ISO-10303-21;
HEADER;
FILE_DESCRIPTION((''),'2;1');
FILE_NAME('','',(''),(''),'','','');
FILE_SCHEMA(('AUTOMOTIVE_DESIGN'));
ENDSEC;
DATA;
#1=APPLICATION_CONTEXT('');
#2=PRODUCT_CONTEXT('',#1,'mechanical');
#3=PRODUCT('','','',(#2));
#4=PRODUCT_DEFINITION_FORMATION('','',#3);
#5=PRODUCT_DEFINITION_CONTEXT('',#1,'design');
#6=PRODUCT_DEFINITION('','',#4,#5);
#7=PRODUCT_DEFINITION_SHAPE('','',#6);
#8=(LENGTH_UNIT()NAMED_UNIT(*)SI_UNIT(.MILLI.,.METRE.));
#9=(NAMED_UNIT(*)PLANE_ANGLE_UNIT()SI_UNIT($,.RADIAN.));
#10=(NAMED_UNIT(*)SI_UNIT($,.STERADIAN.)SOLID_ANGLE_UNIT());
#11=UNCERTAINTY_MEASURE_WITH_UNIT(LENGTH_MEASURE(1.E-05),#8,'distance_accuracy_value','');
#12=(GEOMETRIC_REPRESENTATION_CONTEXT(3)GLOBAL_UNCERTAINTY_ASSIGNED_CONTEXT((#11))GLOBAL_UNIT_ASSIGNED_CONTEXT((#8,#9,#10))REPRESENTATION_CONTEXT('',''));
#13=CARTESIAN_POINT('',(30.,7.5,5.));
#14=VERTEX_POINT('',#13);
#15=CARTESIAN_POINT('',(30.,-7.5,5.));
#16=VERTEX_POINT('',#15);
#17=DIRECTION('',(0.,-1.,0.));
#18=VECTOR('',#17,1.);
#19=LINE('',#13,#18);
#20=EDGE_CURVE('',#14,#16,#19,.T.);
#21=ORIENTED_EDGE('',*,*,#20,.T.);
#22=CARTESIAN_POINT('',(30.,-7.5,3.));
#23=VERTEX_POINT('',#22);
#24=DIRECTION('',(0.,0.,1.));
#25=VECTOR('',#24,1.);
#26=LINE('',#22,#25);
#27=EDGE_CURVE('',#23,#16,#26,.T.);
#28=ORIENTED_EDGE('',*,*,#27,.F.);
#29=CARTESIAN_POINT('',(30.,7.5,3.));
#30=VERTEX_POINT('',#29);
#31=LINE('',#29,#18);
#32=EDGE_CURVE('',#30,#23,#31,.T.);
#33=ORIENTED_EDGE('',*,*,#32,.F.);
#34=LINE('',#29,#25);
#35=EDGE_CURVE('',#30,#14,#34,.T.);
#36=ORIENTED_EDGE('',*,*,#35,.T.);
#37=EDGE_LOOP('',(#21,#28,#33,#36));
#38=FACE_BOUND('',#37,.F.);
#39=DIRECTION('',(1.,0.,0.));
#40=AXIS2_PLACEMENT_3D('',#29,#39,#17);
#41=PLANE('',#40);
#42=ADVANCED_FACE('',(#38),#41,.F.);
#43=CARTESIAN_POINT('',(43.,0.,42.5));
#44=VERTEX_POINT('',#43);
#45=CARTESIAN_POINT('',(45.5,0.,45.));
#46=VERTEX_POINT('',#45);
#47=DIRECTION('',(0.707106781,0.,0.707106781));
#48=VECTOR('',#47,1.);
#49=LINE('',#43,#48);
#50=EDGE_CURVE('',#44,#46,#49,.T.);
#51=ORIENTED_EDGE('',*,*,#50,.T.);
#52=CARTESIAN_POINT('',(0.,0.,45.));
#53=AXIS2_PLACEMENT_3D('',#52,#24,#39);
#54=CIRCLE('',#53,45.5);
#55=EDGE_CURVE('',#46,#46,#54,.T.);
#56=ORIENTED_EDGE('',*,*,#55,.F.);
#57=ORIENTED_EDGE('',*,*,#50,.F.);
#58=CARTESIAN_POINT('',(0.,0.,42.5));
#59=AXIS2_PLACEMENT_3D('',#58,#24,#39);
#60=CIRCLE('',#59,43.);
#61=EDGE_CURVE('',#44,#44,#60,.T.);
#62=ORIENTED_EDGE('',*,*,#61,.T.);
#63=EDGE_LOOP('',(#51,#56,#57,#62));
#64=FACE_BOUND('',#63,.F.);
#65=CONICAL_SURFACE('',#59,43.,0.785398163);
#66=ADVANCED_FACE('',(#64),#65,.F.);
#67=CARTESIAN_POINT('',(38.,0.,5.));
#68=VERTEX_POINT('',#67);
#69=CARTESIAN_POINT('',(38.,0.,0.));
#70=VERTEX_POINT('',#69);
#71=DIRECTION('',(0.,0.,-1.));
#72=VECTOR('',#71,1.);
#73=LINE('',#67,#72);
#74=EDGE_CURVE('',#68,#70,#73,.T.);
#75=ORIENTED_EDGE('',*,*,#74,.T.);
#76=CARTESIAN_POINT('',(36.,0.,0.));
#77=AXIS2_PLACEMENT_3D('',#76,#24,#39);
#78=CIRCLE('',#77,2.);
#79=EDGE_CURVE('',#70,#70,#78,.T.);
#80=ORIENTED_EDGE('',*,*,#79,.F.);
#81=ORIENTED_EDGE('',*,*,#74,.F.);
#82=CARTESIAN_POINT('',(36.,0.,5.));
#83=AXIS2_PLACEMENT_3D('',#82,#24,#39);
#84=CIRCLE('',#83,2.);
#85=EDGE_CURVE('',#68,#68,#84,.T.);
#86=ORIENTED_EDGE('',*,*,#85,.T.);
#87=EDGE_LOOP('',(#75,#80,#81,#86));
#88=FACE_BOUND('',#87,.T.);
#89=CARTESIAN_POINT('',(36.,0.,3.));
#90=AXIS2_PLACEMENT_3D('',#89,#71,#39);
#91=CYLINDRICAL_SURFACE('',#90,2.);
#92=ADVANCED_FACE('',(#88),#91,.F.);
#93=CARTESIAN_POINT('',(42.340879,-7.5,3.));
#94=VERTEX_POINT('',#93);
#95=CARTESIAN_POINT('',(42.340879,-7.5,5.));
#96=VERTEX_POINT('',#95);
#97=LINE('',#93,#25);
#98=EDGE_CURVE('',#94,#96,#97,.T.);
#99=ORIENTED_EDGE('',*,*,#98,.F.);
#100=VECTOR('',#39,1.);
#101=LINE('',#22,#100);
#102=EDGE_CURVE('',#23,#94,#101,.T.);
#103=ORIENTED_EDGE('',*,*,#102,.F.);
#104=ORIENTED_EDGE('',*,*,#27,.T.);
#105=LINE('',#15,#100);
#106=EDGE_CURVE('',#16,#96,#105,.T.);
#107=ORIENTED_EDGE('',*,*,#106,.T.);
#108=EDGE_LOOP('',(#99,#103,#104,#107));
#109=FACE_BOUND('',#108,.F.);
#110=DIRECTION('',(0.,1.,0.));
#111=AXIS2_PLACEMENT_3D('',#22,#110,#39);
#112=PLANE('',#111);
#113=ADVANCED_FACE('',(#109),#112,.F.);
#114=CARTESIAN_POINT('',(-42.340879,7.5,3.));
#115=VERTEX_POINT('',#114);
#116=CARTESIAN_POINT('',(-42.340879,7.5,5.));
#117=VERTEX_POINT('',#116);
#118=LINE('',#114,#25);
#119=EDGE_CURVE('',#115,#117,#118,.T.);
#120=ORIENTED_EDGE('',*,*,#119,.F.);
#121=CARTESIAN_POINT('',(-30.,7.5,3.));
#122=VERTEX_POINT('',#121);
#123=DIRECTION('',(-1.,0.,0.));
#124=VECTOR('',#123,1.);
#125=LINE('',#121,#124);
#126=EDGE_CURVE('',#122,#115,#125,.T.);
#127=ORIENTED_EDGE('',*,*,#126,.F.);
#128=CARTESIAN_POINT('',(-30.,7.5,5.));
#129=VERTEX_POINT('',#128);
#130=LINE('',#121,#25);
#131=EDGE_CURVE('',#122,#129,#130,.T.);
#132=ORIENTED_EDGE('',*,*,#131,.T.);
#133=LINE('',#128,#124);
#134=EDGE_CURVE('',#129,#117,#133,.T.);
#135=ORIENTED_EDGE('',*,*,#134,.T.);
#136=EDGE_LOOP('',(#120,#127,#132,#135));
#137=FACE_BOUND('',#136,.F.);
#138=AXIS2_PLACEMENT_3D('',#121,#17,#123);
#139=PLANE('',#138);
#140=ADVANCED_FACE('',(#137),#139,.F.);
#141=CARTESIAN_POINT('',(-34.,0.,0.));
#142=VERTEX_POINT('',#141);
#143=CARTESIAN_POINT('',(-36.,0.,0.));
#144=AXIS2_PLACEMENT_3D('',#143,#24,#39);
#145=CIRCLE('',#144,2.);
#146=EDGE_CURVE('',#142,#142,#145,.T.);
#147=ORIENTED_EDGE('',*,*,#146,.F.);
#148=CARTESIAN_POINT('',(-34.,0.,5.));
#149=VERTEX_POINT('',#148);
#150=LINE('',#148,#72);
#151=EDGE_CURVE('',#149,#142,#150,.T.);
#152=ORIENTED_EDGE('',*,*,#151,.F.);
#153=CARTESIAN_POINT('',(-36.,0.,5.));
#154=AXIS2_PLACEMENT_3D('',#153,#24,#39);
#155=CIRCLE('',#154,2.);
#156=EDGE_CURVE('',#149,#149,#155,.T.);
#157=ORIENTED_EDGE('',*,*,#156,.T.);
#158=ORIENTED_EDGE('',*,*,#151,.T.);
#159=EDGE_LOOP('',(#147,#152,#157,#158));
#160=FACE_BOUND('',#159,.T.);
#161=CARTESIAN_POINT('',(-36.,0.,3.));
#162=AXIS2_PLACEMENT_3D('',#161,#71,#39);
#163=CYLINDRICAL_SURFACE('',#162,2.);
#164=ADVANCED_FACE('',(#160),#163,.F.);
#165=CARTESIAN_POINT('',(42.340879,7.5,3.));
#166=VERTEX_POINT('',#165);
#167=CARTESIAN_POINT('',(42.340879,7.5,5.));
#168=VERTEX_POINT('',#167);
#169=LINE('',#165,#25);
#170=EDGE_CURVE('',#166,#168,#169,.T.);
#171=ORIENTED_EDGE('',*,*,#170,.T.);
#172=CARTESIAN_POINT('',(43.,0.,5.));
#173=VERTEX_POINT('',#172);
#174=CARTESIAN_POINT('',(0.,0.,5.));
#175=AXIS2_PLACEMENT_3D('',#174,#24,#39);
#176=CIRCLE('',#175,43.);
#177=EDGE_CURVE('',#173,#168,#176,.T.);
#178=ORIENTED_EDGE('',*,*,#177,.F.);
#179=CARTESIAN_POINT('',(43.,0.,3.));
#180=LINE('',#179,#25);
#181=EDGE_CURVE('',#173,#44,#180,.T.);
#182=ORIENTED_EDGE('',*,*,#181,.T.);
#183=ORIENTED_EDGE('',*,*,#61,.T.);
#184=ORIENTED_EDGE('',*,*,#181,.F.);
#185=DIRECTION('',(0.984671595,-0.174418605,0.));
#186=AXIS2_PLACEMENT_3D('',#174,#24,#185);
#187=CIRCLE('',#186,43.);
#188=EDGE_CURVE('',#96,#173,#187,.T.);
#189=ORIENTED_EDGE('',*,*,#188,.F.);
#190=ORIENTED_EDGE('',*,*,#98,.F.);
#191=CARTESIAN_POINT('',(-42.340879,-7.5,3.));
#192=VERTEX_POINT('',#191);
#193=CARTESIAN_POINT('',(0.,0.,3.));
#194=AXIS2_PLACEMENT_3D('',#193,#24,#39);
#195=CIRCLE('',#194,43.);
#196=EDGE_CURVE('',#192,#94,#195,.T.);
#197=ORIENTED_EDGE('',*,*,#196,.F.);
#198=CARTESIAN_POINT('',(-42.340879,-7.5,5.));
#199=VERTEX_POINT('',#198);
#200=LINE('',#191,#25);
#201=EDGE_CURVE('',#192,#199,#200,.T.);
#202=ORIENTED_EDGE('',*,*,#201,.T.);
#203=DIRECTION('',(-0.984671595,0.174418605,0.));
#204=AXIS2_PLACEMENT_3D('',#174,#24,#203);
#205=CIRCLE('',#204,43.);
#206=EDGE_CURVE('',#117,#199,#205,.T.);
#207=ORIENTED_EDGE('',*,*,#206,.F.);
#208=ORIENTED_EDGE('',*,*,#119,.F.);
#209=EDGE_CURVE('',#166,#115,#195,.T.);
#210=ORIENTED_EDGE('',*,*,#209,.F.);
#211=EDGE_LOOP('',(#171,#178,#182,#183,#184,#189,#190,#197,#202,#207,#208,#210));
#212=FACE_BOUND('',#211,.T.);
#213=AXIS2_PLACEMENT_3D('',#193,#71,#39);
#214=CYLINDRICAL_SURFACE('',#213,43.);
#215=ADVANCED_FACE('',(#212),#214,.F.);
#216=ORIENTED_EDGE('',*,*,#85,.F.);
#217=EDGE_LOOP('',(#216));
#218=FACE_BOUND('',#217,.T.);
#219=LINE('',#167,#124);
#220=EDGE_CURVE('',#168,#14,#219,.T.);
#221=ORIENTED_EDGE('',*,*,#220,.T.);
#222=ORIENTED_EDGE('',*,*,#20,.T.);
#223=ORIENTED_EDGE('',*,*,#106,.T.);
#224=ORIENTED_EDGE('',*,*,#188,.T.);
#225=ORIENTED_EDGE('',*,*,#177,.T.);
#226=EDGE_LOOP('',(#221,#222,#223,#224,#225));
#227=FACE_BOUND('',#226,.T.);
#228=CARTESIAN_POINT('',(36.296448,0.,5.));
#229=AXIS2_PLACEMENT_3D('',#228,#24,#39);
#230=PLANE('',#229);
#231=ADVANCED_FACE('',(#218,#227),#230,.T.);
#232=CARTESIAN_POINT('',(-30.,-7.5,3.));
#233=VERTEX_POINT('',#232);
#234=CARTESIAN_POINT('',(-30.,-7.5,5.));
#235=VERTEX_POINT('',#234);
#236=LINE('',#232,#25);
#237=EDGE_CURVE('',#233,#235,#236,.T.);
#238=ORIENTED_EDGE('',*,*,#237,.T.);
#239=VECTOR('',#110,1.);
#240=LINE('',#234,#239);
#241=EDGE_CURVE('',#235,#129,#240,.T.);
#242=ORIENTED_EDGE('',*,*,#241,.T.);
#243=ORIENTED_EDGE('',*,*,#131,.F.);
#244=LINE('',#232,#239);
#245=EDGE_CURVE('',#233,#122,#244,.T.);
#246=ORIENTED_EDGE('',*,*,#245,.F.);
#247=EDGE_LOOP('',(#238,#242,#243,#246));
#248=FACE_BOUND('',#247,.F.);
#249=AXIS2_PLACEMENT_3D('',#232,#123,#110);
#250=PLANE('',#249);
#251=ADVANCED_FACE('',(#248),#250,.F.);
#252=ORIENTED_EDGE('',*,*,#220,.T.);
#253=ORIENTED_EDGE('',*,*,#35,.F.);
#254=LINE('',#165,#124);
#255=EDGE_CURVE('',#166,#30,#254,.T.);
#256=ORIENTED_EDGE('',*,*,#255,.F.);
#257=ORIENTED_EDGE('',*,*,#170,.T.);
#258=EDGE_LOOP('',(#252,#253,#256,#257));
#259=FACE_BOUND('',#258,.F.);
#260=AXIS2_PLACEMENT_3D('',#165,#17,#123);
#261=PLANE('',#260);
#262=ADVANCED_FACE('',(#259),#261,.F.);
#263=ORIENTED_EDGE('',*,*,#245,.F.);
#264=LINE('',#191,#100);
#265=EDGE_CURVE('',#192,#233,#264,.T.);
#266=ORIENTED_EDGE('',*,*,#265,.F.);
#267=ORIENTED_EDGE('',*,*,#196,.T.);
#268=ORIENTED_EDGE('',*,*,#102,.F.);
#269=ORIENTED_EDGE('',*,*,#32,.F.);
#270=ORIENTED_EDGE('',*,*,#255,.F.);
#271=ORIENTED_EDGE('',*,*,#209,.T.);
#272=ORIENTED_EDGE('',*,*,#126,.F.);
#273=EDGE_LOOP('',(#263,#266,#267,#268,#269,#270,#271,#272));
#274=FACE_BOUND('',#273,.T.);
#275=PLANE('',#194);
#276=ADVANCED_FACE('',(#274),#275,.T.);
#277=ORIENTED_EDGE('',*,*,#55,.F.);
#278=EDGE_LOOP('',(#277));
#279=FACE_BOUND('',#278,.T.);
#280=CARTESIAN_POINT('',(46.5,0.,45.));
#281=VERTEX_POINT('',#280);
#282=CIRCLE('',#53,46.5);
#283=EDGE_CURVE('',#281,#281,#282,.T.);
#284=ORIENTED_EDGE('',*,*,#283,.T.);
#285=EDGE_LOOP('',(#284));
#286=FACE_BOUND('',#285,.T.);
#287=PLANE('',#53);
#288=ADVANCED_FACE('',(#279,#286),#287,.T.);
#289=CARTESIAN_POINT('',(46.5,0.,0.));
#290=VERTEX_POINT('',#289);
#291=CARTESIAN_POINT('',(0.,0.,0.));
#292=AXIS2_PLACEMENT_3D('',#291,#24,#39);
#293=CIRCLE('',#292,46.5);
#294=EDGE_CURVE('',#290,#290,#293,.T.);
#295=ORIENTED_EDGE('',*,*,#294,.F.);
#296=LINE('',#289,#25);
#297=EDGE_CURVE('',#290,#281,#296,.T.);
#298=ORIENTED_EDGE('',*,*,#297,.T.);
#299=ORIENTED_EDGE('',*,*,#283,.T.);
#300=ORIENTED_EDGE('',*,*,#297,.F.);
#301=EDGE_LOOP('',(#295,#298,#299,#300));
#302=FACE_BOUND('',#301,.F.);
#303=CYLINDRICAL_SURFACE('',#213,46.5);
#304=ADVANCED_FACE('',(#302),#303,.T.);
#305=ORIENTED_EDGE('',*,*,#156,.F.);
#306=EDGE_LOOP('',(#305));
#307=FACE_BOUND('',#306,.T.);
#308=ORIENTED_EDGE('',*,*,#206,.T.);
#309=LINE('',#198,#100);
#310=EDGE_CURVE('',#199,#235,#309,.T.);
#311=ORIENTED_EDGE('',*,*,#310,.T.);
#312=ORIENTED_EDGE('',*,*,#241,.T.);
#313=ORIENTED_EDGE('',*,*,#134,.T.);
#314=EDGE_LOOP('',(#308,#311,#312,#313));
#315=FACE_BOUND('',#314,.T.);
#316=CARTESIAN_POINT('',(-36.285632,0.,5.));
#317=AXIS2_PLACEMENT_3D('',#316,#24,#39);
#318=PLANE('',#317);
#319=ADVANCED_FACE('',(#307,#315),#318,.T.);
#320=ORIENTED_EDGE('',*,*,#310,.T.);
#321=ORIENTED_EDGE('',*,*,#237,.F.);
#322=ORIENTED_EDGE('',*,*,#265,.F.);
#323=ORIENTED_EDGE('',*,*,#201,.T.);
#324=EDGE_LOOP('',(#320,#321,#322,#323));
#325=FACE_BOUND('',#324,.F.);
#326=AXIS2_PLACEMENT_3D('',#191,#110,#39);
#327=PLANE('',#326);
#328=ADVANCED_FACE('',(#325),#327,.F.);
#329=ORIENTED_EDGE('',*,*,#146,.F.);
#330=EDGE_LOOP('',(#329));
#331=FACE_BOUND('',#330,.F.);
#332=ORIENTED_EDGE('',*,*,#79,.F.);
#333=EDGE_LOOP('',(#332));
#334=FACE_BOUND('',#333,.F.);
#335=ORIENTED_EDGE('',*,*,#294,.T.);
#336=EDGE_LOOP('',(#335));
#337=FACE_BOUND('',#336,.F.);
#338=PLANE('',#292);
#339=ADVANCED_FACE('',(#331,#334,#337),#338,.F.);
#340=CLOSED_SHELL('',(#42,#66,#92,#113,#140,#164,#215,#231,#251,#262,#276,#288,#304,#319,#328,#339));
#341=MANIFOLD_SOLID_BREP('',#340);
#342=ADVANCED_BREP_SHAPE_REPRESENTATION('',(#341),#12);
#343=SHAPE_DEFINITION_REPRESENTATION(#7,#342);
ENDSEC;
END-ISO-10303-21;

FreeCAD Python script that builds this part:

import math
import FreeCAD as App
import Part
import Sketcher
from FreeCAD import Vector


def edges_at(feature, points):
    """Names of the edges that pass closest to the given points."""
    edges = feature.Shape.Edges
    near = lambda p: min(range(len(edges)), key=lambda i: edges[i].distToShape(Part.Vertex(*p))[0])
    return sorted({f"Edge{near(p) + 1}" for p in points})

doc = App.newDocument("Part")
body = doc.addObject("PartDesign::Body", "Body")

# Sketch on XY plane
sketch1 = doc.addObject("Sketcher::SketchObject", "Sketch")
body.addObject(sketch1)
sketch1.AttachmentSupport = (doc.XY_Plane, [""])
sketch1.MapMode = "FlatFace"
sketch1.addGeometry([
    Part.Circle(Vector(0, 0, 0), Vector(0, 0, 1), 46.5),
    Part.Circle(Vector(-36, 0, 0), Vector(0, 0, 1), 2),
    Part.Circle(Vector(36, 0, 0), Vector(0, 0, 1), 2),
], False)
sketch1.addConstraint([
    Sketcher.Constraint("Coincident", 0, 3, -1, 1),
    Sketcher.Constraint("Equal", 1, 2),
    Sketcher.Constraint("Symmetric", 1, 3, 2, 3, -1, 1),
    Sketcher.Constraint("PointOnObject", 1, 3, -1),
    Sketcher.Constraint("Diameter", 0, 93.0),
    Sketcher.Constraint("Diameter", 1, 4.0),
    Sketcher.Constraint("DistanceX", 1, 3, -1, 1, 36.0),
])
pad1 = doc.addObject("PartDesign::Pad", "Pad")
body.addObject(pad1)
pad1.Profile = sketch1
pad1.Length = 3

# Sketch on XY plane
sketch2 = doc.addObject("Sketcher::SketchObject", "Sketch001")
body.addObject(sketch2)
sketch2.AttachmentSupport = (doc.XY_Plane, [""])
sketch2.MapMode = "FlatFace"
sketch2.AttachmentOffset = App.Placement(Vector(0, 0, 3), App.Rotation())
sketch2.addGeometry([
    Part.Circle(Vector(0, 0, 0), Vector(0, 0, 1), 46.5),
    Part.Circle(Vector(0, 0, 0), Vector(0, 0, 1), 43),
], False)
sketch2.addConstraint([
    Sketcher.Constraint("Coincident", 0, 3, -1, 1),
    Sketcher.Constraint("Coincident", 1, 3, -1, 1),
    Sketcher.Constraint("Diameter", 0, 93.0),
    Sketcher.Constraint("Diameter", 1, 86.0),
])
pad2 = doc.addObject("PartDesign::Pad", "Pad001")
body.addObject(pad2)
pad2.Profile = sketch2
pad2.Length = 42
doc.recompute()

chamfer = doc.addObject("PartDesign::Chamfer", "Chamfer")
body.addObject(chamfer)
chamfer.Base = (pad2, edges_at(pad2, [(-43, 0, 45)]))
chamfer.Size = 2.5

# Sketch on XY plane
sketch3 = doc.addObject("Sketcher::SketchObject", "Sketch002")
body.addObject(sketch3)
sketch3.AttachmentSupport = (doc.XY_Plane, [""])
sketch3.MapMode = "FlatFace"
sketch3.AttachmentOffset = App.Placement(Vector(0, 0, 3), App.Rotation())
sketch3.addGeometry([
    Part.LineSegment(Vector(-30, -7.5, 0), Vector(-30, 7.5, 0)),  # 0
    Part.LineSegment(Vector(-30, 7.5, 0), Vector(-42.340879, 7.5, 0)),  # 1
    Part.ArcOfCircle(Part.Circle(Vector(0, 0, 0), Vector(0, 0, 1), 43), math.radians(169.955174), math.radians(190.044826)),  # 2
    Part.LineSegment(Vector(-42.340879, -7.5, 0), Vector(-30, -7.5, 0)),  # 3
    Part.Circle(Vector(-36, 0, 0), Vector(0, 0, 1), 2),  # 4
    Part.ArcOfCircle(Part.Circle(Vector(0, 0, 0), Vector(0, 0, 1), 43), math.radians(0), math.radians(10.044826)),  # 5
    Part.LineSegment(Vector(42.340879, 7.5, 0), Vector(30, 7.5, 0)),  # 6
    Part.LineSegment(Vector(30, 7.5, 0), Vector(30, -7.5, 0)),  # 7
    Part.LineSegment(Vector(30, -7.5, 0), Vector(42.340879, -7.5, 0)),  # 8
    Part.ArcOfCircle(Part.Circle(Vector(0, 0, 0), Vector(0, 0, 1), 43), math.radians(-10.044826), math.radians(0)),  # 9
    Part.Circle(Vector(36, 0, 0), Vector(0, 0, 1), 2),  # 10
], False)
sketch3.addConstraint([
    Sketcher.Constraint("Coincident", 0, 2, 1, 1),
    Sketcher.Constraint("Coincident", 1, 2, 2, 1),
    Sketcher.Constraint("Coincident", 2, 2, 3, 1),
    Sketcher.Constraint("Coincident", 3, 2, 0, 1),
    Sketcher.Constraint("Coincident", 5, 2, 6, 1),
    Sketcher.Constraint("Coincident", 6, 2, 7, 1),
    Sketcher.Constraint("Coincident", 7, 2, 8, 1),
    Sketcher.Constraint("Coincident", 8, 2, 9, 1),
    Sketcher.Constraint("Tangent", 9, 2, 5, 1),
    Sketcher.Constraint("Vertical", 0),
    Sketcher.Constraint("Horizontal", 1),
    Sketcher.Constraint("Horizontal", 3),
    Sketcher.Constraint("Horizontal", 6),
    Sketcher.Constraint("Vertical", 7),
    Sketcher.Constraint("Horizontal", 8),
    Sketcher.Constraint("Coincident", 2, 3, -1, 1),
    Sketcher.Constraint("Coincident", 5, 3, -1, 1),
    Sketcher.Constraint("Equal", 2, 5),
    Sketcher.Constraint("Equal", 5, 9),
    Sketcher.Constraint("Equal", 4, 10),
    Sketcher.Constraint("Symmetric", 4, 3, 10, 3, -1, 1),
    Sketcher.Constraint("Symmetric", 3, 2, 6, 2, -1, 1),
    Sketcher.Constraint("PointOnObject", 4, 3, -1),
    Sketcher.Constraint("PointOnObject", 9, 2, -1),
    Sketcher.Constraint("Horizontal", 1, 2, 5, 2),
    Sketcher.Constraint("Horizontal", 3, 2, 7, 2),
    Sketcher.Constraint("Diameter", 4, 4.0),
    Sketcher.Constraint("Radius", 2, 43.0),
    Sketcher.Constraint("DistanceY", 0, 1, 0, 2, 15.0),
    Sketcher.Constraint("DistanceX", 4, 3, -1, 1, 36.0),
    Sketcher.Constraint("DistanceX", 0, 2, -1, 1, 30.0),
])
pad3 = doc.addObject("PartDesign::Pad", "Pad002")
body.addObject(pad3)
pad3.Profile = sketch3
pad3.Length = 2

doc.recompute()
